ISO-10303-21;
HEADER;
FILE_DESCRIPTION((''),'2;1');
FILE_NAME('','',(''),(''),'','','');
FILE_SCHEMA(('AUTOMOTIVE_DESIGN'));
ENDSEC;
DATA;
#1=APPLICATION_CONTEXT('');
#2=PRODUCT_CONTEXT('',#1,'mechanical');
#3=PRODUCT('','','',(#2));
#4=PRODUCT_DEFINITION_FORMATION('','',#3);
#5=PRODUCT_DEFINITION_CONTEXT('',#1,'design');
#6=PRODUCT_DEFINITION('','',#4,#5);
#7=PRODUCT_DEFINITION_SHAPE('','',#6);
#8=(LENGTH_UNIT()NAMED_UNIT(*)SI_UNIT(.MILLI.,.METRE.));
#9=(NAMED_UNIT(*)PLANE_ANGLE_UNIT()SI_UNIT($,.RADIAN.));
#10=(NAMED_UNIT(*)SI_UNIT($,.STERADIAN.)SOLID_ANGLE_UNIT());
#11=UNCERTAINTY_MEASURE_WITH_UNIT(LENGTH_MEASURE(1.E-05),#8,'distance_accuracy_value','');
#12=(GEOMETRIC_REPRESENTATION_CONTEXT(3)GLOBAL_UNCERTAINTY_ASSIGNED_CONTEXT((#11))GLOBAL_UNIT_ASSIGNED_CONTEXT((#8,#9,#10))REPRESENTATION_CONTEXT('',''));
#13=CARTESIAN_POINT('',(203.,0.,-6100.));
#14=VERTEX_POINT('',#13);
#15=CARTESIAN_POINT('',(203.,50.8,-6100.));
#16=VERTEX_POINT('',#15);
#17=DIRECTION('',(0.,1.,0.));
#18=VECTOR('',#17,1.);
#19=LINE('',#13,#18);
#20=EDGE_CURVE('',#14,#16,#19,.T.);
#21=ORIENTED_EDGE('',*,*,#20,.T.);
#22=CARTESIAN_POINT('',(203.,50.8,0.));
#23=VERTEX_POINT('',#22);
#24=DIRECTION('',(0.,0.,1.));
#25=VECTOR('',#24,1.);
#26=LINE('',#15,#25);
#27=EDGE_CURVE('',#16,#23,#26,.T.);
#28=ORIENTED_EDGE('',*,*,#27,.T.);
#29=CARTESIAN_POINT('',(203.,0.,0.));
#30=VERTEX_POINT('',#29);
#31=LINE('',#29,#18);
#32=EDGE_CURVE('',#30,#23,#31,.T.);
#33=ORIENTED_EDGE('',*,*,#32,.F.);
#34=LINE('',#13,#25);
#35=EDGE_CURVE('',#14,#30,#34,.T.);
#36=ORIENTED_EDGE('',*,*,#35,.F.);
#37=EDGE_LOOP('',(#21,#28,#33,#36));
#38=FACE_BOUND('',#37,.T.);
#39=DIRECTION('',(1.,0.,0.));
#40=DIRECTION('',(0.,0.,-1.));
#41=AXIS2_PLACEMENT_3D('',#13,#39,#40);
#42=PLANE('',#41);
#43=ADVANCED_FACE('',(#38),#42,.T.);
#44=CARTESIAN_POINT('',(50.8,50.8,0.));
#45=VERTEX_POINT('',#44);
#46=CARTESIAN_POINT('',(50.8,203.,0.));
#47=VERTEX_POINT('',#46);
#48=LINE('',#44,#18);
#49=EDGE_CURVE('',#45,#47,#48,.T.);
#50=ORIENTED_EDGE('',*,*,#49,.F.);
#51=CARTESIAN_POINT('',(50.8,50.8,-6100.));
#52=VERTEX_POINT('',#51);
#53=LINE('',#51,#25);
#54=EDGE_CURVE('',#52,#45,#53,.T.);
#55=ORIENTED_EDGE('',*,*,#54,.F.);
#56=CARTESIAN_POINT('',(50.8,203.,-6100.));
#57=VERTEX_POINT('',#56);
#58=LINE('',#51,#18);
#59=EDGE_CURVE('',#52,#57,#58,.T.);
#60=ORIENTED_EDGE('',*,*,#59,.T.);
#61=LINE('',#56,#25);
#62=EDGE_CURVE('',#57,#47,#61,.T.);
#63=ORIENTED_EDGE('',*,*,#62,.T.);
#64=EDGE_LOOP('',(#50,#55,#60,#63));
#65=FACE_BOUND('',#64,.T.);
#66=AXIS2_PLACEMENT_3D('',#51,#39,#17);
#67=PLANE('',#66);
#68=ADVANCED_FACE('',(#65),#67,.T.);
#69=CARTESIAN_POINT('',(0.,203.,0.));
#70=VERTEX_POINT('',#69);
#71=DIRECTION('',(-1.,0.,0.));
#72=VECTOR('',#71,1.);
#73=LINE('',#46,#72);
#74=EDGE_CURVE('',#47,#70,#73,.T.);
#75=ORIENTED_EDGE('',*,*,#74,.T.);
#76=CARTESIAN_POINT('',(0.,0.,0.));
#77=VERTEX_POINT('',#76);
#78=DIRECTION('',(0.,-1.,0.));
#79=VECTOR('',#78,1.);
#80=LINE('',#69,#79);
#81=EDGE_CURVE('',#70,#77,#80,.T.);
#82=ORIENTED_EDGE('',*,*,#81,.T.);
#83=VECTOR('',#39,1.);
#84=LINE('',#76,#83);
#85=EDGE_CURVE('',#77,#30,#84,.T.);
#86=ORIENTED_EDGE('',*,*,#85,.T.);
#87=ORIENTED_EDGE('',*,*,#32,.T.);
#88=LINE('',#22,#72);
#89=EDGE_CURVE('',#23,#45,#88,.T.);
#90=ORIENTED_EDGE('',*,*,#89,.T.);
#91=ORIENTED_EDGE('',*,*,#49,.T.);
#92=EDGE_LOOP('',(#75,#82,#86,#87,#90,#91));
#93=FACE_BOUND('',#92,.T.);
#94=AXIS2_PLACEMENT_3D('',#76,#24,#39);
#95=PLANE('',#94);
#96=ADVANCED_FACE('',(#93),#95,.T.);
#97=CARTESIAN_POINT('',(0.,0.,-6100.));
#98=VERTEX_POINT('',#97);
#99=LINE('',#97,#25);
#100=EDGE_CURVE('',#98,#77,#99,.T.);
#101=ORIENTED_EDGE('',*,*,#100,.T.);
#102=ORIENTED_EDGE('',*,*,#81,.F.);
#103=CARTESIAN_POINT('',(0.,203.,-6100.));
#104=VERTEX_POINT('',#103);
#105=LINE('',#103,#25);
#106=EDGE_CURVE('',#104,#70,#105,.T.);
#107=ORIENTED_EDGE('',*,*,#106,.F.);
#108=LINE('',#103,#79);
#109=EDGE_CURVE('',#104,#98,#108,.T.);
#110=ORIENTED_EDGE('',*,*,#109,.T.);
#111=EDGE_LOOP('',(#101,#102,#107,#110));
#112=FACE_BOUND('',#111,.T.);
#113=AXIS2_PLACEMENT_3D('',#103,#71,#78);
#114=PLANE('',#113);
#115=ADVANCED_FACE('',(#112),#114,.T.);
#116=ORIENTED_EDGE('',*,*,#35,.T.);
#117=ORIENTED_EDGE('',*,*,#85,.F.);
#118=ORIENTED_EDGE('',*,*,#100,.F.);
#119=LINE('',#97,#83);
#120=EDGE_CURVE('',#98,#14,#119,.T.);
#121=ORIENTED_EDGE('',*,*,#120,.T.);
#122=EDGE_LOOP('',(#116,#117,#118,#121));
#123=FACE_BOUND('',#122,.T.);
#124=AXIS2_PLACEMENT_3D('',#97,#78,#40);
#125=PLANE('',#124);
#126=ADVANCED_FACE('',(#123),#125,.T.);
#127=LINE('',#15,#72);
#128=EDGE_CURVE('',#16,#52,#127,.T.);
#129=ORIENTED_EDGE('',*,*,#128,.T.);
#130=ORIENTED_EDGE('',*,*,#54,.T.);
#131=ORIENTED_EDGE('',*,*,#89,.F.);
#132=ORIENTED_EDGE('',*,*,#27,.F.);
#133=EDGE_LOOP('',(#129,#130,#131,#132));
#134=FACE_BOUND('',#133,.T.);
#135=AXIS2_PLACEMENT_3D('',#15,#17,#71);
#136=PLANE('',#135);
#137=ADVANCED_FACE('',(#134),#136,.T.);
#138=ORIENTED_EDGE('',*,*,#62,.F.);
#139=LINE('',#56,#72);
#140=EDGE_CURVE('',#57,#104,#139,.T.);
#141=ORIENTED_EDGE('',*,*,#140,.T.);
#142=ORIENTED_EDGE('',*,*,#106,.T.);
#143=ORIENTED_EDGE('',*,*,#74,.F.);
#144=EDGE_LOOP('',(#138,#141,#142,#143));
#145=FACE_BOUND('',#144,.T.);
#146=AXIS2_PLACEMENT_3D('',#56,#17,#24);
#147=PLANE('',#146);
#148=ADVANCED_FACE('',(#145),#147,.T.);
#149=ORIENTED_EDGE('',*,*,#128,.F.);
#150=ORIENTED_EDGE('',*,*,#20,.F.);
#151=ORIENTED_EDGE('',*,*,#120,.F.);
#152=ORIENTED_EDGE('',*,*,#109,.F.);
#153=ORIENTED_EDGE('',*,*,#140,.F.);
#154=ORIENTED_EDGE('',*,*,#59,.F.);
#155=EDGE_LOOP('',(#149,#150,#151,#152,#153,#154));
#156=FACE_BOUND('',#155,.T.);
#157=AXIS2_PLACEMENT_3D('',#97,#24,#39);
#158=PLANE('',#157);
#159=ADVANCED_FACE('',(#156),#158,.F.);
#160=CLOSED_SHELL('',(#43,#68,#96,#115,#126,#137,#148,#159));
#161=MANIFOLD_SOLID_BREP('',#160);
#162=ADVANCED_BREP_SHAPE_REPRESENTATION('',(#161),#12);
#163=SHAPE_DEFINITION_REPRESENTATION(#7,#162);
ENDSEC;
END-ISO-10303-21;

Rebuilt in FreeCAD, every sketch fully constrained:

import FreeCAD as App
import Part
import Sketcher

V = App.Vector


def add_polygon(sketch, points):
    """Adds a closed chain of lines whose ends are joined by coincident constraints."""
    first, n = sketch.GeometryCount, len(points)
    for a, b in zip(points, points[1:] + points[:1]):
        sketch.addGeometry(Part.LineSegment(App.Vector(*a, 0), App.Vector(*b, 0)), False)
    for i in range(n):
        sketch.addConstraint(Sketcher.Constraint("Coincident", first + i, 2, first + (i + 1) % n, 1))

doc = App.newDocument("Part")
body = doc.addObject("PartDesign::Body", "Body")

sketch1 = body.newObject("Sketcher::SketchObject", "Sketch")
sketch1.AttachmentSupport = (doc.getObject("XY_Plane"), [""])
sketch1.MapMode = "FlatFace"
add_polygon(sketch1, [(0, 203), (0, 0), (203, 0), (203, 51), (51, 51), (51, 203)])
sketch1.addConstraint(Sketcher.Constraint("Vertical", 0))
sketch1.addConstraint(Sketcher.Constraint("Horizontal", 1))
sketch1.addConstraint(Sketcher.Constraint("Vertical", 2))
sketch1.addConstraint(Sketcher.Constraint("Horizontal", 3))
sketch1.addConstraint(Sketcher.Constraint("Vertical", 4))
sketch1.addConstraint(Sketcher.Constraint("Horizontal", 5))
sketch1.addConstraint(Sketcher.Constraint("Coincident", 0, 2, -1, 1))
sketch1.addConstraint(Sketcher.Constraint("Equal", 1, 0))
sketch1.addConstraint(Sketcher.Constraint("Equal", 5, 2))
sketch1.addConstraint(Sketcher.Constraint("DistanceX", 1, 1, 1, 2, 203.0))
sketch1.addConstraint(Sketcher.Constraint("DistanceX", 3, 2, 3, 1, 152.2))
pad1 = body.newObject("PartDesign::Pad", "Pad")
pad1.Profile = sketch1
pad1.Length = 6100
pad1.Reversed = True

doc.recompute()
